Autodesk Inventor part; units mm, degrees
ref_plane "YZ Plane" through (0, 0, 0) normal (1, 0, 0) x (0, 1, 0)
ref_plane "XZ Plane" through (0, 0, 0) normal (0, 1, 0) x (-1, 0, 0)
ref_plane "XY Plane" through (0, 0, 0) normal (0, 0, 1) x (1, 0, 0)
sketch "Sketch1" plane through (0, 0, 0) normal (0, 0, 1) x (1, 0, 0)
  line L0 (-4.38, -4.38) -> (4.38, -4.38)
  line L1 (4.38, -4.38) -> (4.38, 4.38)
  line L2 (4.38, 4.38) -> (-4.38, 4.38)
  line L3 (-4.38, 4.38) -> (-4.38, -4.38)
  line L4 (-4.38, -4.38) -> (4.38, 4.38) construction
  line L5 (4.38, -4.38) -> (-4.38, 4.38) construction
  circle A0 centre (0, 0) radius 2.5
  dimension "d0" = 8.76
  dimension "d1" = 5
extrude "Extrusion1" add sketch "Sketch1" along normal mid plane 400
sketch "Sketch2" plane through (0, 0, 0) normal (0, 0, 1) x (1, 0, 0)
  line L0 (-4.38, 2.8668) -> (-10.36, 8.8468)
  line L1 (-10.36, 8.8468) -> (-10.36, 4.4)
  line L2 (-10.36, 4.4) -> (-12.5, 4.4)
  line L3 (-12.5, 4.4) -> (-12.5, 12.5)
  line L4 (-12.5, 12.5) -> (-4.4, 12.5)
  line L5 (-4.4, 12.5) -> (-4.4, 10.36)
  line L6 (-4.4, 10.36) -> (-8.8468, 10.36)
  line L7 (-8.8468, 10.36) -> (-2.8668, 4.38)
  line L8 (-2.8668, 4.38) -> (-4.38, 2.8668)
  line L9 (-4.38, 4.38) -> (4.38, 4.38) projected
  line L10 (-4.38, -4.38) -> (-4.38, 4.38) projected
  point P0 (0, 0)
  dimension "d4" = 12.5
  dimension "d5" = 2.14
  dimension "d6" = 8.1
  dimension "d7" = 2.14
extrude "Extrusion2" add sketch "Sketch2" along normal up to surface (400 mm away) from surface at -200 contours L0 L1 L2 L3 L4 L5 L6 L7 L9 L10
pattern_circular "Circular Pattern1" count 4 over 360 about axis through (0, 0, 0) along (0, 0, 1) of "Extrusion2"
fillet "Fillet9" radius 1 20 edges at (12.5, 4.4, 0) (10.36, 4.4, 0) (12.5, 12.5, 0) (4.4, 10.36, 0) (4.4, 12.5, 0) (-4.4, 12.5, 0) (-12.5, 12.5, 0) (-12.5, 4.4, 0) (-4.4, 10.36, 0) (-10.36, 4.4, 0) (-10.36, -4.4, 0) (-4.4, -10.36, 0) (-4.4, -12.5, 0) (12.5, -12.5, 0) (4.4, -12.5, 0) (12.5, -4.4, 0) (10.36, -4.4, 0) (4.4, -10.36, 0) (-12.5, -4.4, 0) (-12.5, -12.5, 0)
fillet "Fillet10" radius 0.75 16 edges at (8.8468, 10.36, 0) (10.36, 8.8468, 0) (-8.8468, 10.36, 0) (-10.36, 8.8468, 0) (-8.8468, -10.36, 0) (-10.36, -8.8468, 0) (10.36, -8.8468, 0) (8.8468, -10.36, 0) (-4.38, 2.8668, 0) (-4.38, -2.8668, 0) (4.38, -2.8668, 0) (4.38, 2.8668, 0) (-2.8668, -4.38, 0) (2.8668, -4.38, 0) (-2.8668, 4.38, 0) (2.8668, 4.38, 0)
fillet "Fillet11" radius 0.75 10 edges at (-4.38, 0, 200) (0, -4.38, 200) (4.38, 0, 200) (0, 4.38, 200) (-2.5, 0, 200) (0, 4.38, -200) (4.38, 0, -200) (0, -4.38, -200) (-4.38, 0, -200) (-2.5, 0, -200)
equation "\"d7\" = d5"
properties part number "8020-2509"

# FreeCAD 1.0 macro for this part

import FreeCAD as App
import Part
import Sketcher
from FreeCAD import Vector
Q = App.Units.Quantity


def edges_at(feature, points):
    """Names of the edges that pass closest to the given points."""
    edges = feature.Shape.Edges
    near = lambda p: min(range(len(edges)), key=lambda i: edges[i].distToShape(Part.Vertex(*p))[0])
    return sorted({f"Edge{near(p) + 1}" for p in points})


def add_polygon(sketch, points):
    """Adds a closed chain of lines whose ends are joined by coincident constraints."""
    first, n = sketch.GeometryCount, len(points)
    for a, b in zip(points, points[1:] + points[:1]):
        sketch.addGeometry(Part.LineSegment(App.Vector(*a, 0), App.Vector(*b, 0)), False)
    for i in range(n):
        sketch.addConstraint(Sketcher.Constraint("Coincident", first + i, 2, first + (i + 1) % n, 1))

doc = App.newDocument("Part")
body = doc.addObject("PartDesign::Body", "Body")

# Sketch on XY plane
sketch1 = body.newObject("Sketcher::SketchObject", "Sketch")
sketch1.AttachmentSupport = (doc.getObject("XY_Plane"), [""])
sketch1.MapMode = "FlatFace"
add_polygon(sketch1, [(-4.4, 4.4), (-4.4, -4.4), (4.4, -4.4), (4.4, 4.4)])  # lines 0-3
sketch1.addGeometry(Part.Circle(Vector(0, 0, 0), Vector(0, 0, 1), 2.5), False)  # 4
sketch1.addConstraint([
    Sketcher.Constraint("Vertical", 0),
    Sketcher.Constraint("Horizontal", 1),
    Sketcher.Constraint("Vertical", 2),
    Sketcher.Constraint("Horizontal", 3),
    Sketcher.Constraint("Coincident", 4, 3, -1, 1),
    Sketcher.Constraint("Symmetric", 0, 2, 2, 2, -1, 1),
    Sketcher.Constraint("Equal", 3, 0),
    Sketcher.Constraint("Diameter", 4, 5.0),
    Sketcher.Constraint("DistanceX", 1, 1, 1, 2, 8.76),
])
pad1 = body.newObject("PartDesign::Pad", "Pad")
pad1.Profile = sketch1
pad1.Length = 400
pad1.Midplane = True

# Sketch on XY plane
sketch2 = body.newObject("Sketcher::SketchObject", "Sketch001")
sketch2.AttachmentSupport = (doc.getObject("XY_Plane"), [""])
sketch2.MapMode = "FlatFace"
sketch2.AttachmentOffset = App.Placement(Vector(0, 0, -200), App.Rotation())
add_polygon(sketch2, [(-10.4, 8.8), (-4.4, 2.9), (-4.4, 4.4), (-2.9, 4.4), (-8.8, 10.4), (-4.4, 10.4), (-4.4, 12.5), (-12.5, 12.5), (-12.5, 4.4), (-10.4, 4.4)])  # lines 0-9
sketch2.addConstraint([
    Sketcher.Constraint("Vertical", 1),
    Sketcher.Constraint("Horizontal", 2),
    Sketcher.Constraint("Horizontal", 4),
    Sketcher.Constraint("Vertical", 5),
    Sketcher.Constraint("Horizontal", 6),
    Sketcher.Constraint("Vertical", 7),
    Sketcher.Constraint("Horizontal", 8),
    Sketcher.Constraint("Vertical", 9),
    Sketcher.Constraint("Parallel", 0, 3),
    Sketcher.Constraint("Equal", 2, 1),
    Sketcher.Constraint("Equal", 8, 5),
    Sketcher.Constraint("Equal", 6, 7),
    Sketcher.Constraint("Equal", 4, 9),
    Sketcher.Constraint("DistanceX", 6, 2, 6, 1, 8.1),
    Sketcher.Constraint("DistanceX", 8, 1, 8, 2, 2.14),
    Sketcher.Constraint("DistanceY", -1, 1, 5, 2, 12.5),
    Sketcher.Constraint("DistanceX", 6, 2, -1, 1, 12.5),
    Sketcher.Constraint("Angle", 0, Q("-45 deg")),
    Sketcher.Constraint("DistanceX", 0, 2, -1, 1, 4.38),
    Sketcher.Constraint("DistanceX", 2, 1, 2, 2, 1.5132),
])
pad2 = body.newObject("PartDesign::Pad", "Pad001")
pad2.Profile = sketch2
pad2.Length = 400
doc.recompute()

polarpattern = body.newObject("PartDesign::PolarPattern", "PolarPattern")
polarpattern.Originals = [pad2]
polarpattern.Axis = (doc.getObject("Z_Axis"), [""])
polarpattern.Angle = 360
polarpattern.Occurrences = 4
body.Tip = polarpattern
doc.recompute()

fillet = body.newObject("PartDesign::Fillet", "Fillet")
fillet.Base = (polarpattern, edges_at(polarpattern, [
    (12.5, 4.4, 0),
    (10.36, 4.4, 0),
    (12.5, 12.5, 0),
    (4.4, 10.36, 0),
    (4.4, 12.5, 0),
    (-4.4, 12.5, 0),
    (-12.5, 12.5, 0),
    (-12.5, 4.4, 0),
    (-4.4, 10.36, 0),
    (-10.36, 4.4, 0),
    (-10.36, -4.4, 0),
    (-4.4, -10.36, 0),
    (-4.4, -12.5, 0),
    (12.5, -12.5, 0),
    (4.4, -12.5, 0),
    (12.5, -4.4, 0),
    (10.36, -4.4, 0),
    (4.4, -10.36, 0),
    (-12.5, -4.4, 0),
    (-12.5, -12.5, 0),
]))
fillet.Radius = 1
doc.recompute()

fillet2 = body.newObject("PartDesign::Fillet", "Fillet001")
fillet2.Base = (fillet, edges_at(fillet, [
    (8.847, 10.36, 0),
    (10.36, 8.847, 0),
    (-8.847, 10.36, 0),
    (-10.36, 8.847, 0),
    (-8.847, -10.36, 0),
    (-10.36, -8.847, 0),
    (10.36, -8.847, 0),
    (8.847, -10.36, 0),
    (-4.38, 2.867, 0),
    (-4.38, -2.867, 0),
    (4.38, -2.867, 0),
    (4.38, 2.867, 0),
    (-2.867, -4.38, 0),
    (2.867, -4.38, 0),
    (-2.867, 4.38, 0),
    (2.867, 4.38, 0),
]))
fillet2.Radius = 0.75
doc.recompute()

fillet3 = body.newObject("PartDesign::Fillet", "Fillet002")
fillet3.Base = (fillet2, edges_at(fillet2, [
    (-4.38, 0, 200),
    (0, -4.38, 200),
    (4.38, 0, 200),
    (0, 4.38, 200),
    (-2.5, 0, 200),
    (0, 4.38, -200),
    (4.38, 0, -200),
    (0, -4.38, -200),
    (-4.38, 0, -200),
    (-2.5, 0, -200),
]))
fillet3.Radius = 0.75

doc.recompute()
